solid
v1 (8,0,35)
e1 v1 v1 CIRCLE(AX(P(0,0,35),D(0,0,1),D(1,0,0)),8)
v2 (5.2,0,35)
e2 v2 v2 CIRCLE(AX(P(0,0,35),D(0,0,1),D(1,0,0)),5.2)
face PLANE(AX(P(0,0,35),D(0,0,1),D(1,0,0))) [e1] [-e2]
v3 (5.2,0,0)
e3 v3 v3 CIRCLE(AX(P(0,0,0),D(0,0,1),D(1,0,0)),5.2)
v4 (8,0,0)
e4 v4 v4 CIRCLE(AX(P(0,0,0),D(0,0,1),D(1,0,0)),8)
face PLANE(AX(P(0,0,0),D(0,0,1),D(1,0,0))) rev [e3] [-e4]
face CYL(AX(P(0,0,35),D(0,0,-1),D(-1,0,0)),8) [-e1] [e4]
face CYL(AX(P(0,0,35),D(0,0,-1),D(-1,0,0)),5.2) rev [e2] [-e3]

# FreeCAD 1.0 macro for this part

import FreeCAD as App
import Part
import Sketcher

V = App.Vector

doc = App.newDocument("Part")
body = doc.addObject("PartDesign::Body", "Body")

sketch1 = body.newObject("Sketcher::SketchObject", "Sketch")
sketch1.AttachmentSupport = (doc.getObject("XY_Plane"), [""])
sketch1.MapMode = "FlatFace"
sketch1.addGeometry([
    Part.Circle(V(0, 0, 0), V(0, 0, 1), 8),
    Part.Circle(V(0, 0, 0), V(0, 0, 1), 5),
], False)
sketch1.addConstraint([
    Sketcher.Constraint("Coincident", 0, 3, -1, 1),
    Sketcher.Constraint("Coincident", 1, 3, -1, 1),
    Sketcher.Constraint("Diameter", 0, 16.0),
    Sketcher.Constraint("Diameter", 1, 10.4),
])
pad1 = body.newObject("PartDesign::Pad", "Pad")
pad1.Profile = sketch1
pad1.Length = 35

doc.recompute()
